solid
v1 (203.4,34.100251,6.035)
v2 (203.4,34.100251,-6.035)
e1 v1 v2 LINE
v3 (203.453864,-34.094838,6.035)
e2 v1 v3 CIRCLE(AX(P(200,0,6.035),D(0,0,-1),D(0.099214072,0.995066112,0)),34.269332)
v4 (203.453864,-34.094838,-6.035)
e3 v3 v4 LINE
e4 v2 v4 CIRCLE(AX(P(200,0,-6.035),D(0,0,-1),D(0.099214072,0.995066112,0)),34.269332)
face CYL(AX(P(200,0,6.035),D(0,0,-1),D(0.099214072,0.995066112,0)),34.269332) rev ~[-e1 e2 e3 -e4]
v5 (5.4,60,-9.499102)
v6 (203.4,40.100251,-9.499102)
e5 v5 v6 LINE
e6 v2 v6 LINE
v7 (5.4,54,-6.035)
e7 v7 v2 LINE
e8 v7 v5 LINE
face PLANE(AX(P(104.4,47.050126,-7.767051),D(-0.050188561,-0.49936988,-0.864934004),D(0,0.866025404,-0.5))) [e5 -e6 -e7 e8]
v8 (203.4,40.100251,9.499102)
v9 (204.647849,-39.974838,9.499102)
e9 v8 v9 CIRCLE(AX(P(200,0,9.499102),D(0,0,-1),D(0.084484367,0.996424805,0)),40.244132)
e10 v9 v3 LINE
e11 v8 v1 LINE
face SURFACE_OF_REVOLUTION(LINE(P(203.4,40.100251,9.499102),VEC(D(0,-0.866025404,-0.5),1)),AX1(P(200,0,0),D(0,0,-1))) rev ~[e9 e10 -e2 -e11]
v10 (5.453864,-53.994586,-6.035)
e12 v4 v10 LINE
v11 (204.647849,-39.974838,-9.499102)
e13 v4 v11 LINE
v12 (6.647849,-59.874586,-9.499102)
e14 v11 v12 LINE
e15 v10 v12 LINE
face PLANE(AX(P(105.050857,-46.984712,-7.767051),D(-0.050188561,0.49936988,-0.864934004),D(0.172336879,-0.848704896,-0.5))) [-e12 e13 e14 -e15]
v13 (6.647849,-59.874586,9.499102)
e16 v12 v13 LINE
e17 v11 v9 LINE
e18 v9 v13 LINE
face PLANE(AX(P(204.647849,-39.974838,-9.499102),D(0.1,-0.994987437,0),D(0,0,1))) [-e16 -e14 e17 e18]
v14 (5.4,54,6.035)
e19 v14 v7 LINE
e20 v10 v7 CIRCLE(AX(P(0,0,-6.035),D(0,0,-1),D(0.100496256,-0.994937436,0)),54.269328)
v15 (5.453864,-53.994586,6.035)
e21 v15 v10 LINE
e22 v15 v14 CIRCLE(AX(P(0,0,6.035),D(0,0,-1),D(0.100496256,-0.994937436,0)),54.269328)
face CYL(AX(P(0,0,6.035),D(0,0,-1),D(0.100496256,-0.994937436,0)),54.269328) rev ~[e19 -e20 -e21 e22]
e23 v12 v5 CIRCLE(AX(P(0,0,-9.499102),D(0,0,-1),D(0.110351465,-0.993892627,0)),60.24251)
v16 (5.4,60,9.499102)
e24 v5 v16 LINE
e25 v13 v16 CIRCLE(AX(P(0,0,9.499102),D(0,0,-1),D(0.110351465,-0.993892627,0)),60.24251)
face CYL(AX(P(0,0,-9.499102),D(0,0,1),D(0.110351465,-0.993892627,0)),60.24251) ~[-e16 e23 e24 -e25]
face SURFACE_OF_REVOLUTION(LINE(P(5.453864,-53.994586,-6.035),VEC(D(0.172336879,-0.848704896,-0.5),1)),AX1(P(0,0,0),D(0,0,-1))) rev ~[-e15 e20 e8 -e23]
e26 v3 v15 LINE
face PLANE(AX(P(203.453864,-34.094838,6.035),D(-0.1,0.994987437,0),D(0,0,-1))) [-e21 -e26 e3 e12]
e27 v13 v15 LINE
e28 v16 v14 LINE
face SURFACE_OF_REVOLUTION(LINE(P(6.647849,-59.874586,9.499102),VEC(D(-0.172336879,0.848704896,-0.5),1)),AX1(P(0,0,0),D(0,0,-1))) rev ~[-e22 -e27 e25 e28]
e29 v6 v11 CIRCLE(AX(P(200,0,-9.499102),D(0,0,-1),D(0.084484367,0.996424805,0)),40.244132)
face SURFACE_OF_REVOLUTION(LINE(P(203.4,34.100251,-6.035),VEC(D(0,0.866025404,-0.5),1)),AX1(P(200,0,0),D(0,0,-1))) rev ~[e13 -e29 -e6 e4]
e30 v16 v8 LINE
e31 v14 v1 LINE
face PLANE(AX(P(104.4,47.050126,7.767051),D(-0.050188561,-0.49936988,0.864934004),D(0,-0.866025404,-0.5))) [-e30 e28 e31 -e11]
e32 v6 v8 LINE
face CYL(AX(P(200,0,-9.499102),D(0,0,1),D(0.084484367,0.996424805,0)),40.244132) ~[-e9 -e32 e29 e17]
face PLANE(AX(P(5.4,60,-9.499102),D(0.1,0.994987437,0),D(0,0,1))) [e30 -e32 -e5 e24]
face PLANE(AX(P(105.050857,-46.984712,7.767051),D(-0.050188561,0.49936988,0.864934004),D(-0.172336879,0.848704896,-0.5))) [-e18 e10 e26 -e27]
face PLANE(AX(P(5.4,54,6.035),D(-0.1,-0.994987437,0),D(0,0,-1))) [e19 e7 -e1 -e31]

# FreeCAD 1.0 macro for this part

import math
import FreeCAD as App
import Part
import Sketcher

V = App.Vector
Q = App.Units.Quantity


def add_polygon(sketch, points):
    """Adds a closed chain of lines whose ends are joined by coincident constraints."""
    first, n = sketch.GeometryCount, len(points)
    for a, b in zip(points, points[1:] + points[:1]):
        sketch.addGeometry(Part.LineSegment(App.Vector(*a, 0), App.Vector(*b, 0)), False)
    for i in range(n):
        sketch.addConstraint(Sketcher.Constraint("Coincident", first + i, 2, first + (i + 1) % n, 1))

doc = App.newDocument("Part")
body = doc.addObject("PartDesign::Body", "Body")

sketch1 = body.newObject("Sketcher::SketchObject", "Sketch")
sketch1.AttachmentSupport = (doc.getObject("YZ_Plane"), [""])
sketch1.MapMode = "FlatFace"
sketch1.AttachmentOffset = App.Placement(V(0, 0, 5.4), App.Rotation())
add_polygon(sketch1, [(54, 6.035), (54, -6.035), (60, -9.499102), (60, 9.499102)])
sketch1.addConstraint([
    Sketcher.Constraint("Vertical", 0),
    Sketcher.Constraint("Vertical", 2),
    Sketcher.Constraint("Equal", 1, 3),
    Sketcher.Constraint("Angle", 1, Q("-30 deg")),
    Sketcher.Constraint("DistanceX", -1, 1, 0, 2, Q("54 mm")),
    Sketcher.Constraint("DistanceX", -1, 1, 1, 2, Q("60 mm")),
    Sketcher.Constraint("DistanceY", 0, 2, 0, 1, Q("12.07 mm")),
    Sketcher.Constraint("DistanceY", 0, 2, -1, 1, Q("6.035 mm")),
])

sketch2 = body.newObject("Sketcher::SketchObject", "Sketch001")
sketch2.AttachmentSupport = (doc.getObject("XY_Plane"), [""])
sketch2.MapMode = "FlatFace"
sketch2.addGeometry([
    Part.LineSegment(V(5.4, 53.729322, 0), V(203.4, 33.829573, 0)),
    Part.ArcOfCircle(Part.Circle(V(200, 0, 0), V(0, 0, 1), 34), math.radians(-84.26083), math.radians(84.26083)),
    Part.LineSegment(V(203.4, -33.829573, 0), V(5.4, -53.729322, 0)),
    Part.ArcOfCircle(Part.Circle(V(0, 0, 0), V(0, 0, 1), 54), math.radians(84.26083), math.radians(275.73917)),
], False)
sketch2.addConstraint([
    Sketcher.Constraint("Tangent", 0, 2, 1, 2),
    Sketcher.Constraint("Tangent", 1, 1, 2, 1),
    Sketcher.Constraint("Tangent", 2, 2, 3, 2),
    Sketcher.Constraint("Tangent", 3, 1, 0, 1),
    Sketcher.Constraint("Coincident", 3, 3, -1, 1),
    Sketcher.Constraint("PointOnObject", 1, 3, -1),
    Sketcher.Constraint("Radius", 1, Q("34 mm")),
    Sketcher.Constraint("Radius", 3, Q("54 mm")),
    Sketcher.Constraint("DistanceX", -1, 1, 1, 3, Q("200 mm")),
])
doc.recompute()

additivepipe = body.newObject("PartDesign::AdditivePipe", "AdditivePipe")
additivepipe.Profile = sketch1
additivepipe.Spine = (sketch2, ["Edge1", "Edge2", "Edge3", "Edge4"])

doc.recompute()
